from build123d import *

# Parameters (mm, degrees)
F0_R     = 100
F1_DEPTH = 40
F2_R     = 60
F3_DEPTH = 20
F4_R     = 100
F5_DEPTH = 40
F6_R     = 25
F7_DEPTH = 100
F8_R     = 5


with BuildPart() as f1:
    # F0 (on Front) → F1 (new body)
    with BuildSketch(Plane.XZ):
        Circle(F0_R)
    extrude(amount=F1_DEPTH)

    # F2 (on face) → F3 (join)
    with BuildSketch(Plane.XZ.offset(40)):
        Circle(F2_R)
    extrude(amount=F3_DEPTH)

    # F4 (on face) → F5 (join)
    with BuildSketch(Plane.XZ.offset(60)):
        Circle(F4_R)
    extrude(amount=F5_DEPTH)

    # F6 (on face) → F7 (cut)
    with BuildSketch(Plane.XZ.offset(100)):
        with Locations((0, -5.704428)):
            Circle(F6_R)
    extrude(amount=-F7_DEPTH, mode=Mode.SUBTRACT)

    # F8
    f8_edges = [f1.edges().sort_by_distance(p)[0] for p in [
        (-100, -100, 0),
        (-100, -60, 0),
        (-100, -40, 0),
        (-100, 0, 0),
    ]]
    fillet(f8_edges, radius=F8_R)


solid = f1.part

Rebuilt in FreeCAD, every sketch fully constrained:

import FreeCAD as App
import Part
import Sketcher
from FreeCAD import Vector
Q = App.Units.Quantity


def edges_at(feature, points):
    """Names of the edges that pass closest to the given points."""
    edges = feature.Shape.Edges
    near = lambda p: min(range(len(edges)), key=lambda i: edges[i].distToShape(Part.Vertex(*p))[0])
    return sorted({f"Edge{near(p) + 1}" for p in points})

doc = App.newDocument("Part")
body = doc.addObject("PartDesign::Body", "Body")

sketch1 = doc.addObject("Sketcher::SketchObject", "Sketch")
body.addObject(sketch1)
sketch1.AttachmentSupport = (doc.XZ_Plane, [""])
sketch1.MapMode = "FlatFace"
sketch1.addGeometry(Part.Circle(Vector(0, 0, 0), Vector(0, 0, 1), 100), False)
sketch1.addConstraint([
    Sketcher.Constraint("Coincident", 0, 3, -1, 1),
    Sketcher.Constraint("Diameter", 0, Q("200 mm")),
])
pad1 = doc.addObject("PartDesign::Pad", "Pad")
body.addObject(pad1)
pad1.Profile = sketch1
pad1.Length = 40

sketch2 = doc.addObject("Sketcher::SketchObject", "Sketch001")
body.addObject(sketch2)
sketch2.AttachmentSupport = (doc.XZ_Plane, [""])
sketch2.MapMode = "FlatFace"
sketch2.AttachmentOffset = App.Placement(Vector(0, 0, 40), App.Rotation())
sketch2.addGeometry(Part.Circle(Vector(0, 0, 0), Vector(0, 0, 1), 60), False)
sketch2.addConstraint([
    Sketcher.Constraint("Coincident", 0, 3, -1, 1),
    Sketcher.Constraint("Diameter", 0, Q("120 mm")),
])
pad2 = doc.addObject("PartDesign::Pad", "Pad001")
body.addObject(pad2)
pad2.Profile = sketch2
pad2.Length = 20

sketch3 = doc.addObject("Sketcher::SketchObject", "Sketch002")
body.addObject(sketch3)
sketch3.AttachmentSupport = (doc.XZ_Plane, [""])
sketch3.MapMode = "FlatFace"
sketch3.AttachmentOffset = App.Placement(Vector(0, 0, 60), App.Rotation())
sketch3.addGeometry(Part.Circle(Vector(0, 0, 0), Vector(0, 0, 1), 100), False)
sketch3.addConstraint([
    Sketcher.Constraint("Coincident", 0, 3, -1, 1),
    Sketcher.Constraint("Diameter", 0, Q("200 mm")),
])
pad3 = doc.addObject("PartDesign::Pad", "Pad002")
body.addObject(pad3)
pad3.Profile = sketch3
pad3.Length = 40

sketch4 = doc.addObject("Sketcher::SketchObject", "Sketch003")
body.addObject(sketch4)
sketch4.AttachmentSupport = (doc.XZ_Plane, [""])
sketch4.MapMode = "FlatFace"
sketch4.AttachmentOffset = App.Placement(Vector(0, 0, 100), App.Rotation())
sketch4.addGeometry(Part.Circle(Vector(0, -6, 0), Vector(0, 0, 1), 25), False)
sketch4.addConstraint([
    Sketcher.Constraint("PointOnObject", 0, 3, -2),
    Sketcher.Constraint("Diameter", 0, Q("50 mm")),
    Sketcher.Constraint("DistanceY", 0, 3, -1, 1, Q("5.704428 mm")),
])
pocket1 = doc.addObject("PartDesign::Pocket", "Pocket")
body.addObject(pocket1)
pocket1.Profile = sketch4
pocket1.Length = 100
doc.recompute()

fillet = doc.addObject("PartDesign::Fillet", "Fillet")
body.addObject(fillet)
fillet.Base = (pocket1, edges_at(pocket1, [
    (-100, -100, 0),
    (-100, -60, 0),
    (-100, -40, 0),
    (-100, 0, 0),
]))
fillet.Radius = 5

doc.recompute()
